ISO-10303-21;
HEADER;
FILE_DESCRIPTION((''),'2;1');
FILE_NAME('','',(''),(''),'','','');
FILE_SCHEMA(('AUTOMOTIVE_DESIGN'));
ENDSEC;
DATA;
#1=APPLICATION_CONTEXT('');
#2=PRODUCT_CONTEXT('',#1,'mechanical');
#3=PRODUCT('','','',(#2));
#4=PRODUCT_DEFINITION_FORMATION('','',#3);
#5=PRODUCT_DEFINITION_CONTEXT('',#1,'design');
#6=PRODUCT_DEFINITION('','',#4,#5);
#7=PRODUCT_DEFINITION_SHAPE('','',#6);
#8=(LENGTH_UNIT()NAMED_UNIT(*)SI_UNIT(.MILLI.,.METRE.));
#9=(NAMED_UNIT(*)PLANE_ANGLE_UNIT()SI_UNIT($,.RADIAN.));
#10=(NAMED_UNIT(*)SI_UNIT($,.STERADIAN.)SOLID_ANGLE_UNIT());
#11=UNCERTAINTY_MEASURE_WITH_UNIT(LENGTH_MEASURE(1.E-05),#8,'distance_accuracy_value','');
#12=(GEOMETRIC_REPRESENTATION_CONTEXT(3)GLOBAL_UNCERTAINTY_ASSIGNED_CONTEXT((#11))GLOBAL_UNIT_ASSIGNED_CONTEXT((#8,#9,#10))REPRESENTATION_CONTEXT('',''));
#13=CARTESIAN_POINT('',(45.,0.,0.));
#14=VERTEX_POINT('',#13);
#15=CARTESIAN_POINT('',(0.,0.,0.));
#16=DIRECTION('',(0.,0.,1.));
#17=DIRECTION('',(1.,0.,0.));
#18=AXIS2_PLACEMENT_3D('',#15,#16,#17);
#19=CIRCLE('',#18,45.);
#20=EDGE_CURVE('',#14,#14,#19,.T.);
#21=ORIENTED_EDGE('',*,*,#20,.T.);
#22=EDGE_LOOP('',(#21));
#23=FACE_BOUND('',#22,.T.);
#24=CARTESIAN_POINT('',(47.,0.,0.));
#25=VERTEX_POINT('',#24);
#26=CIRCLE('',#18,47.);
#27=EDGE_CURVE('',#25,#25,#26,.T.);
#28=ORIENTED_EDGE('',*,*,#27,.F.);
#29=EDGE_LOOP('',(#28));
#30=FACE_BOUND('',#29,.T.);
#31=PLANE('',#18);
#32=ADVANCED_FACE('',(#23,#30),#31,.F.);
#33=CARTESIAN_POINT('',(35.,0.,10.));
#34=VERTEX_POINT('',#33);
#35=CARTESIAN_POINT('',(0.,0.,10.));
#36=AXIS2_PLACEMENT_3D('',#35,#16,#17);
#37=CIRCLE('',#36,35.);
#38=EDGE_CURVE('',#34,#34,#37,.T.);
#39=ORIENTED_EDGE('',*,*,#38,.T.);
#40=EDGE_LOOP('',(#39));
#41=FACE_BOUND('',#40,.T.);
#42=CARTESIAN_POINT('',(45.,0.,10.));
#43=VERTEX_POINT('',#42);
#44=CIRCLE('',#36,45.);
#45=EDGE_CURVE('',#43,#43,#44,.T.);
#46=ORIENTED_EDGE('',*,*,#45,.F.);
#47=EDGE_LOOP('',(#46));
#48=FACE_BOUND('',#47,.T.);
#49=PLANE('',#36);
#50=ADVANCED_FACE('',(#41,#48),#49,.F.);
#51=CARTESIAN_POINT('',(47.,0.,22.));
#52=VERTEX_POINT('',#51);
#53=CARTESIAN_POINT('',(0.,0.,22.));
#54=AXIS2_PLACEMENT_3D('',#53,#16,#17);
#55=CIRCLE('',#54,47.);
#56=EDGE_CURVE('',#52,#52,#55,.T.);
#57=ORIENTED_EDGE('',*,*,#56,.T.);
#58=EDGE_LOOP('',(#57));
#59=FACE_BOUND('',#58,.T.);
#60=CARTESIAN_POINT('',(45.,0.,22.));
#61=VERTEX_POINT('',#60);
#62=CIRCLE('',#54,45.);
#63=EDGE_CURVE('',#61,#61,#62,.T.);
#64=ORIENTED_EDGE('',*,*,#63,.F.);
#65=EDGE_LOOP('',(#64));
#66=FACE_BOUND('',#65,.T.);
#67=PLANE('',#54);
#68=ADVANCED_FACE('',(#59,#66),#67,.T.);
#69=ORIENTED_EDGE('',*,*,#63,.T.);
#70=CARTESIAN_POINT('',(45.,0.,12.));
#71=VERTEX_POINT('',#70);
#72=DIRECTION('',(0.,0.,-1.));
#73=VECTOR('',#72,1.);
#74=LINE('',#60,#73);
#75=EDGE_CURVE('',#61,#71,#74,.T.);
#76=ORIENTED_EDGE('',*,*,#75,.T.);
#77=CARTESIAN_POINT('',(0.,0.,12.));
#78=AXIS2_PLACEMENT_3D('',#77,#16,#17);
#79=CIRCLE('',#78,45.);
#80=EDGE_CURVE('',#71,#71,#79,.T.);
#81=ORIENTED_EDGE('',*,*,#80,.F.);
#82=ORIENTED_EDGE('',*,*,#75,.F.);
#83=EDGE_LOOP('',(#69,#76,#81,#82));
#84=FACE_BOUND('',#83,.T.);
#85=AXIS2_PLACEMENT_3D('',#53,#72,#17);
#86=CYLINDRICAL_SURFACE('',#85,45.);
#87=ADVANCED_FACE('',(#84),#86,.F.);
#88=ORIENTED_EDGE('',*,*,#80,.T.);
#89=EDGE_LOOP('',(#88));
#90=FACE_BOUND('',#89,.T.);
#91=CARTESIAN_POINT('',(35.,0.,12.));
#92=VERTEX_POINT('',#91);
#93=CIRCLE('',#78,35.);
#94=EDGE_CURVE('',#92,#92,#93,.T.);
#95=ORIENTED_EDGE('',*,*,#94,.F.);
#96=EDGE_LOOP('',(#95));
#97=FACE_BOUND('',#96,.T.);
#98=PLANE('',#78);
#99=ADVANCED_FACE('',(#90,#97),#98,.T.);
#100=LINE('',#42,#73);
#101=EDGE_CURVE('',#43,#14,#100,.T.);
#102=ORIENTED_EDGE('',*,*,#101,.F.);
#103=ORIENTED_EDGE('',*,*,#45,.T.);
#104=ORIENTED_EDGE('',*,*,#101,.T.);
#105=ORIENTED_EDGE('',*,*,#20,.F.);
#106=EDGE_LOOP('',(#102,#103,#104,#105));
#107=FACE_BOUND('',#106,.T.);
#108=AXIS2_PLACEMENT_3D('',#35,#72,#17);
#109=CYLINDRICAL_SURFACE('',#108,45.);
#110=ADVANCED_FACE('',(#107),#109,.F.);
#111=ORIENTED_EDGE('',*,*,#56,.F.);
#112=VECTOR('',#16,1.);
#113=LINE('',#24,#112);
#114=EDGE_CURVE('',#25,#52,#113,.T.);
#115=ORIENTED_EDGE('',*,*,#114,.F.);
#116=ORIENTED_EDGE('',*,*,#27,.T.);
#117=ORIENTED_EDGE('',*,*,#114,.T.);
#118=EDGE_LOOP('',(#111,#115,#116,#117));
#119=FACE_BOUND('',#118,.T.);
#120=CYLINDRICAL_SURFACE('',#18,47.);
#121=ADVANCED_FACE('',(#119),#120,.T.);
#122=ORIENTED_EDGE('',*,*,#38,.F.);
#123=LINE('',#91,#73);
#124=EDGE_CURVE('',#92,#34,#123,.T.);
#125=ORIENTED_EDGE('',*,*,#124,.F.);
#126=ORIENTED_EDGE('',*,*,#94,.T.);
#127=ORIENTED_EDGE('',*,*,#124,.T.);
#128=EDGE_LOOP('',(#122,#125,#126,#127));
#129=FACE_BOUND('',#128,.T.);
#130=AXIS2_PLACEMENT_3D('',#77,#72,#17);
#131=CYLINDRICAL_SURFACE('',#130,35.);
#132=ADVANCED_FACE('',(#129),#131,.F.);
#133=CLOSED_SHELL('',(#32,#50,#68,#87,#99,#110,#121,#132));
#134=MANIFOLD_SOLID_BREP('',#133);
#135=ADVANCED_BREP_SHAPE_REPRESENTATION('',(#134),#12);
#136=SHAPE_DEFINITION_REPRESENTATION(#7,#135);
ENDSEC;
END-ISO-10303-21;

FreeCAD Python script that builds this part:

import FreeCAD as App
import Part
import Sketcher

V = App.Vector
Q = App.Units.Quantity

doc = App.newDocument("Part")
body = doc.addObject("PartDesign::Body", "Body")

sketch1 = body.newObject("Sketcher::SketchObject", "Sketch")
sketch1.AttachmentSupport = (doc.getObject("XZ_Plane"), [""])
sketch1.MapMode = "FlatFace"
sketch1.addGeometry([
    Part.LineSegment(V(47, 22, 0), V(47, 0, 0)),
    Part.LineSegment(V(47, 0, 0), V(45, 0, 0)),
    Part.LineSegment(V(45, 0, 0), V(45, 10, 0)),
    Part.LineSegment(V(45, 10, 0), V(35, 10, 0)),
    Part.LineSegment(V(35, 10, 0), V(35, 12, 0)),
    Part.LineSegment(V(35, 12, 0), V(45, 12, 0)),
    Part.LineSegment(V(45, 12, 0), V(45, 22, 0)),
    Part.LineSegment(V(45, 22, 0), V(47, 22, 0)),
], False)
sketch1.addConstraint([
    Sketcher.Constraint("Coincident", 0, 2, 1, 1),
    Sketcher.Constraint("Coincident", 1, 2, 2, 1),
    Sketcher.Constraint("Coincident", 2, 2, 3, 1),
    Sketcher.Constraint("Coincident", 3, 2, 4, 1),
    Sketcher.Constraint("Coincident", 4, 2, 5, 1),
    Sketcher.Constraint("Coincident", 5, 2, 6, 1),
    Sketcher.Constraint("Coincident", 6, 2, 7, 1),
    Sketcher.Constraint("Coincident", 7, 2, 0, 1),
    Sketcher.Constraint("Vertical", 0),
    Sketcher.Constraint("Horizontal", 1),
    Sketcher.Constraint("Vertical", 2),
    Sketcher.Constraint("Horizontal", 3),
    Sketcher.Constraint("Vertical", 4),
    Sketcher.Constraint("Horizontal", 5),
    Sketcher.Constraint("Vertical", 6),
    Sketcher.Constraint("Horizontal", 7),
    Sketcher.Constraint("PointOnObject", 0, 2, -1),
    Sketcher.Constraint("Vertical", 2, 2, 5, 2),
    Sketcher.Constraint("Equal", 5, 2),
    Sketcher.Constraint("Equal", 7, 4),
    Sketcher.Constraint("Equal", 2, 6),
    Sketcher.Constraint("DistanceX", 1, 2, 1, 1, Q("2 mm")),
    Sketcher.Constraint("DistanceX", 3, 2, 3, 1, Q("10 mm")),
    Sketcher.Constraint("DistanceX", -1, 1, 1, 2, Q("45 mm")),
])
revolution = body.newObject("PartDesign::Revolution", "Revolution")
revolution.Profile = sketch1
revolution.ReferenceAxis = (sketch1, ["V_Axis"])
revolution.Angle = 360

doc.recompute()
